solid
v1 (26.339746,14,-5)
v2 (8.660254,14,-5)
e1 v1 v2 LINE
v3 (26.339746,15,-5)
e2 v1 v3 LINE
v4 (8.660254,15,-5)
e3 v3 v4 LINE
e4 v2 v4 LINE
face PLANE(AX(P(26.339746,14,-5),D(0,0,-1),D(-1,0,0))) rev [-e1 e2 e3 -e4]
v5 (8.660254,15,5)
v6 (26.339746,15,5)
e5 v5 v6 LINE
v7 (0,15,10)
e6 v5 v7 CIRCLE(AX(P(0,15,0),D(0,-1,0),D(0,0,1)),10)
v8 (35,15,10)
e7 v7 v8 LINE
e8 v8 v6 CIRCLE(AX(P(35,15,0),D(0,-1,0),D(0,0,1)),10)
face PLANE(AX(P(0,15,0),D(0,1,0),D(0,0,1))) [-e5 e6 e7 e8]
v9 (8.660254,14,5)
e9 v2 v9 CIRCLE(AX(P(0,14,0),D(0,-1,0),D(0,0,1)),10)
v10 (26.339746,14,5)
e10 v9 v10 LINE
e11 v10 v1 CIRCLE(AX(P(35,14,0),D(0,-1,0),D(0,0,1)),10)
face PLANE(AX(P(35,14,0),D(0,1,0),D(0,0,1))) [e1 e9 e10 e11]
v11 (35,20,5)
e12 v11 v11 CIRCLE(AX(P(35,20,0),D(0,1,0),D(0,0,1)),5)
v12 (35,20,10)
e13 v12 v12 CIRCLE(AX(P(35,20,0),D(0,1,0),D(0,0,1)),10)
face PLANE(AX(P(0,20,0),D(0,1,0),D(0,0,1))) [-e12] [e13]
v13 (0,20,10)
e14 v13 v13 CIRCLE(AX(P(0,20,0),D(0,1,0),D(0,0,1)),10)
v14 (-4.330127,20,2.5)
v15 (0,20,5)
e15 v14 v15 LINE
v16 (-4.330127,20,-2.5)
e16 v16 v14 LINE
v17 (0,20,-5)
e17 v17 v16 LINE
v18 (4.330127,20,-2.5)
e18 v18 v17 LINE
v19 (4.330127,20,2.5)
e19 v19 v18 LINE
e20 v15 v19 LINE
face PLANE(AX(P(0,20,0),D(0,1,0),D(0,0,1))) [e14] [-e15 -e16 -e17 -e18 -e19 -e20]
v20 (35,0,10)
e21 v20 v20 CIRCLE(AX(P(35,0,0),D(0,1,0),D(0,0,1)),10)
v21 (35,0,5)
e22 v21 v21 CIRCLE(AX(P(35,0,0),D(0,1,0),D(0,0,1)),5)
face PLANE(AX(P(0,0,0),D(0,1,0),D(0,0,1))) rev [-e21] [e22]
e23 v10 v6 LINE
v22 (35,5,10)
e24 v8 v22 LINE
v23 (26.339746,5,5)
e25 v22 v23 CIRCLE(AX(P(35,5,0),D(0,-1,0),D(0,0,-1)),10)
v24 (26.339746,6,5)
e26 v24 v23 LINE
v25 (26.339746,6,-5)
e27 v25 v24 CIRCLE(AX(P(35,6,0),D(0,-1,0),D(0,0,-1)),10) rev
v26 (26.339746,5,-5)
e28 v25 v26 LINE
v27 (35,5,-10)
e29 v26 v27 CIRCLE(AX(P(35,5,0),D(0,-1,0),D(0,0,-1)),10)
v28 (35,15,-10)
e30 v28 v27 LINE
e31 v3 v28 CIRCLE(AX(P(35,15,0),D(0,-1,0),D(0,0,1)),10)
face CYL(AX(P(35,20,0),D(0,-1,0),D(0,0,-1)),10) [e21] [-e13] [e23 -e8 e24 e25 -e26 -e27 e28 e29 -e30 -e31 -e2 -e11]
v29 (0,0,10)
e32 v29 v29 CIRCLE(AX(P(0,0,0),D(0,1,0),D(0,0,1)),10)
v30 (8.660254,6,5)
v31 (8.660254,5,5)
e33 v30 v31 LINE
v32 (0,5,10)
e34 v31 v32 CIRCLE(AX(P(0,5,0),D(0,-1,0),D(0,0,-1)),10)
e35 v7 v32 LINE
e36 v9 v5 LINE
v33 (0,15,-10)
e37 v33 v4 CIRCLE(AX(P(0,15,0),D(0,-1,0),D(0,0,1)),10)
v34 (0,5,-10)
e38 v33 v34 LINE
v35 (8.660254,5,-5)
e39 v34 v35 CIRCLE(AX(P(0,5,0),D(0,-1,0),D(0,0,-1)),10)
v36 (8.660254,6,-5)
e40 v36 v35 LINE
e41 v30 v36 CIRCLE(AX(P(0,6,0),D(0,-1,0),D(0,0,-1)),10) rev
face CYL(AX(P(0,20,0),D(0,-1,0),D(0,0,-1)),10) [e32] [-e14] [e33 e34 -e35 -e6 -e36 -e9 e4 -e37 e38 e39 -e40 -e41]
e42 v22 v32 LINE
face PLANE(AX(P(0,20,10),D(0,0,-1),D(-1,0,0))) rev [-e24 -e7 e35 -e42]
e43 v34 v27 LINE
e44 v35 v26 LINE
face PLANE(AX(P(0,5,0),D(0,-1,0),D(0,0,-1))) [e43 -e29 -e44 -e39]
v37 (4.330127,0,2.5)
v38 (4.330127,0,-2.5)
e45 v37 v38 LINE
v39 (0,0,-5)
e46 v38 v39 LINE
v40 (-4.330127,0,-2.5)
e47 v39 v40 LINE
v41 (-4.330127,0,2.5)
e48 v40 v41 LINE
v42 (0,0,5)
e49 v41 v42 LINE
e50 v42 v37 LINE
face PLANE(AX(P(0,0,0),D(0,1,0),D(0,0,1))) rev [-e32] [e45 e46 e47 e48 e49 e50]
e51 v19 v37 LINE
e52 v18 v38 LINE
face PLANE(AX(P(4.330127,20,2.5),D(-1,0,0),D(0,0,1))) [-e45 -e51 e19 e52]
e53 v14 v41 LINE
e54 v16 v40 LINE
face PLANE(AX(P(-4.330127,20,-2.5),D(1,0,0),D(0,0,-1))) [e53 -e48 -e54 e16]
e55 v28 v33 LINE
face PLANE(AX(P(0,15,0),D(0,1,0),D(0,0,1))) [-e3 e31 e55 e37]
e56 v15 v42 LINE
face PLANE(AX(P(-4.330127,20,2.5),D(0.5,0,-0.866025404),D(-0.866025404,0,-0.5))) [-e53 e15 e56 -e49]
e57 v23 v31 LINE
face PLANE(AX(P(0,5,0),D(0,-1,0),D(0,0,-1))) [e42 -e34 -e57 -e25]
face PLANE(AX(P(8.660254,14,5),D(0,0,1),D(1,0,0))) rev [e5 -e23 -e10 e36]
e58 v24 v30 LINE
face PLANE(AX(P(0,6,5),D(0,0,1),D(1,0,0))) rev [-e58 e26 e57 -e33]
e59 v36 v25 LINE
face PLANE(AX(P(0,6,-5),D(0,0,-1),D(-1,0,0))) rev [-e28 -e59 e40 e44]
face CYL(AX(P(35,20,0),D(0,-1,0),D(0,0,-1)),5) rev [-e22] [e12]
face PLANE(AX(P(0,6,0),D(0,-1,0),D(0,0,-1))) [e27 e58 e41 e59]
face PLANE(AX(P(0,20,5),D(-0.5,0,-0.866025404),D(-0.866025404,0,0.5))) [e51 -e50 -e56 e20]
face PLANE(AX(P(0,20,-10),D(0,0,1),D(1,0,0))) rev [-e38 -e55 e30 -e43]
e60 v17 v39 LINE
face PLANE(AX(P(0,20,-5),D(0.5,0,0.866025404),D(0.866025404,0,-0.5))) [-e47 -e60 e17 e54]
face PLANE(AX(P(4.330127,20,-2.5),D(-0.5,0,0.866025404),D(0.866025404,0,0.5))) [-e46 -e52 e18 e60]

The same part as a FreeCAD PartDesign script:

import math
import FreeCAD as App
import Part
import Sketcher

V = App.Vector
Q = App.Units.Quantity


def add_polygon(sketch, points):
    """Adds a closed chain of lines whose ends are joined by coincident constraints."""
    first, n = sketch.GeometryCount, len(points)
    for a, b in zip(points, points[1:] + points[:1]):
        sketch.addGeometry(Part.LineSegment(App.Vector(*a, 0), App.Vector(*b, 0)), False)
    for i in range(n):
        sketch.addConstraint(Sketcher.Constraint("Coincident", first + i, 2, first + (i + 1) % n, 1))

doc = App.newDocument("Part")
body = doc.addObject("PartDesign::Body", "Body")

# Sketch on XZ plane
sketch1 = body.newObject("Sketcher::SketchObject", "Sketch")
sketch1.AttachmentSupport = (doc.getObject("XZ_Plane"), [""])
sketch1.MapMode = "FlatFace"
sketch1.addGeometry(Part.LineSegment(V(35, -10, 0), V(0, -10, 0)), False)  # 0
sketch1.addGeometry(Part.ArcOfCircle(Part.Circle(V(0, 0, 0), V(0, 0, 1), 10), math.radians(90), math.radians(270)), False)  # 1
sketch1.addGeometry(Part.LineSegment(V(0, 10, 0), V(35, 10, 0)), False)  # 2
sketch1.addGeometry(Part.ArcOfCircle(Part.Circle(V(35, 0, 0), V(0, 0, 1), 10), math.radians(-90), math.radians(90)), False)  # 3
sketch1.addGeometry(Part.Circle(V(35, 0, 0), V(0, 0, 1), 5), False)  # 4
add_polygon(sketch1, [(0, -5), (4.330127, -2.5), (4.330127, 2.5), (0, 5), (-4.330127, 2.5), (-4.330127, -2.5)])  # lines 5-10
sketch1.addConstraint(Sketcher.Constraint("Tangent", 0, 2, 1, 2))
sketch1.addConstraint(Sketcher.Constraint("Tangent", 1, 1, 2, 1))
sketch1.addConstraint(Sketcher.Constraint("Tangent", 2, 2, 3, 2))
sketch1.addConstraint(Sketcher.Constraint("Tangent", 3, 1, 0, 1))
sketch1.addConstraint(Sketcher.Constraint("Horizontal", 0))
sketch1.addConstraint(Sketcher.Constraint("Horizontal", 2))
sketch1.addConstraint(Sketcher.Constraint("Vertical", 6))
sketch1.addConstraint(Sketcher.Constraint("Vertical", 9))
sketch1.addConstraint(Sketcher.Constraint("Coincident", 1, 3, -1, 1))
sketch1.addConstraint(Sketcher.Constraint("Coincident", 4, 3, 3, 3))
sketch1.addConstraint(Sketcher.Constraint("Symmetric", 5, 2, 8, 2, -1, 1))
sketch1.addConstraint(Sketcher.Constraint("Symmetric", 7, 2, 10, 2, -1, 1))
sketch1.addConstraint(Sketcher.Constraint("PointOnObject", 7, 2, -2))
sketch1.addConstraint(Sketcher.Constraint("Parallel", 7, 10))
sketch1.addConstraint(Sketcher.Constraint("Horizontal", 6, 2, 8, 2))
sketch1.addConstraint(Sketcher.Constraint("Diameter", 4, 10.0))
sketch1.addConstraint(Sketcher.Constraint("Radius", 1, 10.0))
sketch1.addConstraint(Sketcher.Constraint("DistanceX", 0, 2, 0, 1, 35.0))
sketch1.addConstraint(Sketcher.Constraint("DistanceY", 6, 1, 6, 2, 5.0))
sketch1.addConstraint(Sketcher.Constraint("Angle", 5, Q("30 deg")))
sketch1.addConstraint(Sketcher.Constraint("Distance", 5, 5.0))
pad1 = body.newObject("PartDesign::Pad", "Pad")
pad1.Profile = sketch1
pad1.Length = 20
pad1.Reversed = True

# Sketch on XZ plane
sketch2 = body.newObject("Sketcher::SketchObject", "Sketch001")
sketch2.AttachmentSupport = (doc.getObject("XZ_Plane"), [""])
sketch2.MapMode = "FlatFace"
sketch2.AttachmentOffset = App.Placement(V(0, 0, -20), App.Rotation())
sketch2.addGeometry(Part.LineSegment(V(35, -10, 0), V(0, -10, 0)), False)
sketch2.addGeometry(Part.ArcOfCircle(Part.Circle(V(0, 0, 0), V(0, 0, 1), 10), math.radians(-90), math.radians(90)), False)
sketch2.addGeometry(Part.LineSegment(V(0, 10, 0), V(35, 10, 0)), False)
sketch2.addGeometry(Part.ArcOfCircle(Part.Circle(V(35, 0, 0), V(0, 0, 1), 10), math.radians(90), math.radians(270)), False)
sketch2.addConstraint(Sketcher.Constraint("Tangent", 0, 2, 1, 1))
sketch2.addConstraint(Sketcher.Constraint("Tangent", 1, 2, 2, 1))
sketch2.addConstraint(Sketcher.Constraint("Tangent", 2, 2, 3, 1))
sketch2.addConstraint(Sketcher.Constraint("Tangent", 3, 2, 0, 1))
sketch2.addConstraint(Sketcher.Constraint("Horizontal", 0))
sketch2.addConstraint(Sketcher.Constraint("Horizontal", 2))
sketch2.addConstraint(Sketcher.Constraint("Coincident", 1, 3, -1, 1))
sketch2.addConstraint(Sketcher.Constraint("Radius", 1, 10.0))
sketch2.addConstraint(Sketcher.Constraint("DistanceX", 0, 2, 0, 1, 35.0))
pocket1 = body.newObject("PartDesign::Pocket", "Pocket")
pocket1.Profile = sketch2
pocket1.Length = 5
pocket1.Reversed = True

# Sketch on XZ plane
sketch3 = body.newObject("Sketcher::SketchObject", "Sketch002")
sketch3.AttachmentSupport = (doc.getObject("XZ_Plane"), [""])
sketch3.MapMode = "FlatFace"
sketch3.AttachmentOffset = App.Placement(V(0, 0, -15), App.Rotation())
sketch3.addGeometry(Part.LineSegment(V(26.339746, -5, 0), V(8.660254, -5, 0)), False)
sketch3.addGeometry(Part.ArcOfCircle(Part.Circle(V(0, 0, 0), V(0, 0, 1), 10), math.radians(-30.000001), math.radians(30.000001)), False)
sketch3.addGeometry(Part.LineSegment(V(8.660254, 5, 0), V(26.339746, 5, 0)), False)
sketch3.addGeometry(Part.ArcOfCircle(Part.Circle(V(35, 0, 0), V(0, 0, 1), 10), math.radians(149.999999), math.radians(210.000001)), False)
sketch3.addConstraint(Sketcher.Constraint("Coincident", 0, 2, 1, 1))
sketch3.addConstraint(Sketcher.Constraint("Coincident", 1, 2, 2, 1))
sketch3.addConstraint(Sketcher.Constraint("Coincident", 2, 2, 3, 1))
sketch3.addConstraint(Sketcher.Constraint("Coincident", 3, 2, 0, 1))
sketch3.addConstraint(Sketcher.Constraint("Horizontal", 0))
sketch3.addConstraint(Sketcher.Constraint("Horizontal", 2))
sketch3.addConstraint(Sketcher.Constraint("Coincident", 1, 3, -1, 1))
sketch3.addConstraint(Sketcher.Constraint("Equal", 1, 3))
sketch3.addConstraint(Sketcher.Constraint("Symmetric", 2, 2, 3, 2, -1))
sketch3.addConstraint(Sketcher.Constraint("Radius", 1, 10.0))
sketch3.addConstraint(Sketcher.Constraint("DistanceX", -1, 1, 3, 3, 35.0))
sketch3.addConstraint(Sketcher.Constraint("DistanceY", 0, 2, -1, 1, 5.0))
pocket2 = body.newObject("PartDesign::Pocket", "Pocket001")
pocket2.Profile = sketch3
pocket2.Length = 1
pocket2.Reversed = True

# Sketch on XZ plane
sketch4 = body.newObject("Sketcher::SketchObject", "Sketch003")
sketch4.AttachmentSupport = (doc.getObject("XZ_Plane"), [""])
sketch4.MapMode = "FlatFace"
sketch4.addGeometry(Part.ArcOfCircle(Part.Circle(V(0, 0, 0), V(0, 0, 1), 10), math.radians(-89.999999), math.radians(-30)), False)
sketch4.addGeometry(Part.LineSegment(V(0, -10, 0), V(35, -10, 0)), False)
sketch4.addGeometry(Part.ArcOfCircle(Part.Circle(V(35, 0, 0), V(0, 0, 1), 10), math.radians(-150), math.radians(-90.000001)), False)
sketch4.addGeometry(Part.ArcOfCircle(Part.Circle(V(35, 0, 0), V(0, 0, 1), 10), math.radians(149.999999), math.radians(210.000001)), False)
sketch4.addGeometry(Part.ArcOfCircle(Part.Circle(V(35, 0, 0), V(0, 0, 1), 10), math.radians(90.000001), math.radians(150)), False)
sketch4.addGeometry(Part.LineSegment(V(35, 10, 0), V(0, 10, 0)), False)
sketch4.addGeometry(Part.ArcOfCircle(Part.Circle(V(0, 0, 0), V(0, 0, 1), 10), math.radians(30), math.radians(89.999999)), False)
sketch4.addGeometry(Part.ArcOfCircle(Part.Circle(V(0, 0, 0), V(0, 0, 1), 10), math.radians(-30.000001), math.radians(30.000001)), False)
sketch4.addConstraint(Sketcher.Constraint("Tangent", 0, 1, 1, 1))
sketch4.addConstraint(Sketcher.Constraint("Tangent", 1, 2, 2, 2))
sketch4.addConstraint(Sketcher.Constraint("Tangent", 2, 1, 3, 2))
sketch4.addConstraint(Sketcher.Constraint("Tangent", 3, 1, 4, 2))
sketch4.addConstraint(Sketcher.Constraint("Tangent", 4, 1, 5, 1))
sketch4.addConstraint(Sketcher.Constraint("Tangent", 5, 2, 6, 2))
sketch4.addConstraint(Sketcher.Constraint("Tangent", 6, 1, 7, 2))
sketch4.addConstraint(Sketcher.Constraint("Tangent", 7, 1, 0, 2))
sketch4.addConstraint(Sketcher.Constraint("Horizontal", 1))
sketch4.addConstraint(Sketcher.Constraint("Horizontal", 5))
sketch4.addConstraint(Sketcher.Constraint("Coincident", 0, 3, -1, 1))
sketch4.addConstraint(Sketcher.Constraint("Coincident", 6, 3, -1, 1))
sketch4.addConstraint(Sketcher.Constraint("Coincident", 4, 3, 2, 3))
sketch4.addConstraint(Sketcher.Constraint("Horizontal", 3, 1, 6, 1))
sketch4.addConstraint(Sketcher.Constraint("Horizontal", 2, 1, 7, 1))
sketch4.addConstraint(Sketcher.Constraint("Vertical", 2, 1, 3, 1))
sketch4.addConstraint(Sketcher.Constraint("Radius", 0, 10.0))
sketch4.addConstraint(Sketcher.Constraint("DistanceX", 1, 1, 1, 2, 35.0))
sketch4.addConstraint(Sketcher.Constraint("DistanceY", 2, 1, -1, 1, 5.0))
pocket3 = body.newObject("PartDesign::Pocket", "Pocket002")
pocket3.Profile = sketch4
pocket3.Length = 5

# Sketch on XZ plane
sketch5 = body.newObject("Sketcher::SketchObject", "Sketch004")
sketch5.AttachmentSupport = (doc.getObject("XZ_Plane"), [""])
sketch5.MapMode = "FlatFace"
sketch5.AttachmentOffset = App.Placement(V(0, 0, -5), App.Rotation())
sketch5.addGeometry(Part.ArcOfCircle(Part.Circle(V(0, 0, 0), V(0, 0, 1), 10), math.radians(-30.000001), math.radians(30.000001)), False)
sketch5.addGeometry(Part.LineSegment(V(8.660254, -5, 0), V(26.339746, -5, 0)), False)
sketch5.addGeometry(Part.ArcOfCircle(Part.Circle(V(35, 0, 0), V(0, 0, 1), 10), math.radians(149.999999), math.radians(210.000001)), False)
sketch5.addGeometry(Part.LineSegment(V(26.339746, 5, 0), V(8.660254, 5, 0)), False)
sketch5.addConstraint(Sketcher.Constraint("Coincident", 0, 1, 1, 1))
sketch5.addConstraint(Sketcher.Constraint("Coincident", 1, 2, 2, 2))
sketch5.addConstraint(Sketcher.Constraint("Coincident", 2, 1, 3, 1))
sketch5.addConstraint(Sketcher.Constraint("Coincident", 3, 2, 0, 2))
sketch5.addConstraint(Sketcher.Constraint("Horizontal", 1))
sketch5.addConstraint(Sketcher.Constraint("Horizontal", 3))
sketch5.addConstraint(Sketcher.Constraint("Coincident", 0, 3, -1, 1))
sketch5.addConstraint(Sketcher.Constraint("Equal", 0, 2))
sketch5.addConstraint(Sketcher.Constraint("Symmetric", 1, 2, 2, 1, -1))
sketch5.addConstraint(Sketcher.Constraint("Radius", 0, 10.0))
sketch5.addConstraint(Sketcher.Constraint("DistanceX", -1, 1, 2, 3, 35.0))
sketch5.addConstraint(Sketcher.Constraint("DistanceY", 0, 1, -1, 1, 5.0))
pocket4 = body.newObject("PartDesign::Pocket", "Pocket003")
pocket4.Profile = sketch5
pocket4.Length = 1

doc.recompute()
